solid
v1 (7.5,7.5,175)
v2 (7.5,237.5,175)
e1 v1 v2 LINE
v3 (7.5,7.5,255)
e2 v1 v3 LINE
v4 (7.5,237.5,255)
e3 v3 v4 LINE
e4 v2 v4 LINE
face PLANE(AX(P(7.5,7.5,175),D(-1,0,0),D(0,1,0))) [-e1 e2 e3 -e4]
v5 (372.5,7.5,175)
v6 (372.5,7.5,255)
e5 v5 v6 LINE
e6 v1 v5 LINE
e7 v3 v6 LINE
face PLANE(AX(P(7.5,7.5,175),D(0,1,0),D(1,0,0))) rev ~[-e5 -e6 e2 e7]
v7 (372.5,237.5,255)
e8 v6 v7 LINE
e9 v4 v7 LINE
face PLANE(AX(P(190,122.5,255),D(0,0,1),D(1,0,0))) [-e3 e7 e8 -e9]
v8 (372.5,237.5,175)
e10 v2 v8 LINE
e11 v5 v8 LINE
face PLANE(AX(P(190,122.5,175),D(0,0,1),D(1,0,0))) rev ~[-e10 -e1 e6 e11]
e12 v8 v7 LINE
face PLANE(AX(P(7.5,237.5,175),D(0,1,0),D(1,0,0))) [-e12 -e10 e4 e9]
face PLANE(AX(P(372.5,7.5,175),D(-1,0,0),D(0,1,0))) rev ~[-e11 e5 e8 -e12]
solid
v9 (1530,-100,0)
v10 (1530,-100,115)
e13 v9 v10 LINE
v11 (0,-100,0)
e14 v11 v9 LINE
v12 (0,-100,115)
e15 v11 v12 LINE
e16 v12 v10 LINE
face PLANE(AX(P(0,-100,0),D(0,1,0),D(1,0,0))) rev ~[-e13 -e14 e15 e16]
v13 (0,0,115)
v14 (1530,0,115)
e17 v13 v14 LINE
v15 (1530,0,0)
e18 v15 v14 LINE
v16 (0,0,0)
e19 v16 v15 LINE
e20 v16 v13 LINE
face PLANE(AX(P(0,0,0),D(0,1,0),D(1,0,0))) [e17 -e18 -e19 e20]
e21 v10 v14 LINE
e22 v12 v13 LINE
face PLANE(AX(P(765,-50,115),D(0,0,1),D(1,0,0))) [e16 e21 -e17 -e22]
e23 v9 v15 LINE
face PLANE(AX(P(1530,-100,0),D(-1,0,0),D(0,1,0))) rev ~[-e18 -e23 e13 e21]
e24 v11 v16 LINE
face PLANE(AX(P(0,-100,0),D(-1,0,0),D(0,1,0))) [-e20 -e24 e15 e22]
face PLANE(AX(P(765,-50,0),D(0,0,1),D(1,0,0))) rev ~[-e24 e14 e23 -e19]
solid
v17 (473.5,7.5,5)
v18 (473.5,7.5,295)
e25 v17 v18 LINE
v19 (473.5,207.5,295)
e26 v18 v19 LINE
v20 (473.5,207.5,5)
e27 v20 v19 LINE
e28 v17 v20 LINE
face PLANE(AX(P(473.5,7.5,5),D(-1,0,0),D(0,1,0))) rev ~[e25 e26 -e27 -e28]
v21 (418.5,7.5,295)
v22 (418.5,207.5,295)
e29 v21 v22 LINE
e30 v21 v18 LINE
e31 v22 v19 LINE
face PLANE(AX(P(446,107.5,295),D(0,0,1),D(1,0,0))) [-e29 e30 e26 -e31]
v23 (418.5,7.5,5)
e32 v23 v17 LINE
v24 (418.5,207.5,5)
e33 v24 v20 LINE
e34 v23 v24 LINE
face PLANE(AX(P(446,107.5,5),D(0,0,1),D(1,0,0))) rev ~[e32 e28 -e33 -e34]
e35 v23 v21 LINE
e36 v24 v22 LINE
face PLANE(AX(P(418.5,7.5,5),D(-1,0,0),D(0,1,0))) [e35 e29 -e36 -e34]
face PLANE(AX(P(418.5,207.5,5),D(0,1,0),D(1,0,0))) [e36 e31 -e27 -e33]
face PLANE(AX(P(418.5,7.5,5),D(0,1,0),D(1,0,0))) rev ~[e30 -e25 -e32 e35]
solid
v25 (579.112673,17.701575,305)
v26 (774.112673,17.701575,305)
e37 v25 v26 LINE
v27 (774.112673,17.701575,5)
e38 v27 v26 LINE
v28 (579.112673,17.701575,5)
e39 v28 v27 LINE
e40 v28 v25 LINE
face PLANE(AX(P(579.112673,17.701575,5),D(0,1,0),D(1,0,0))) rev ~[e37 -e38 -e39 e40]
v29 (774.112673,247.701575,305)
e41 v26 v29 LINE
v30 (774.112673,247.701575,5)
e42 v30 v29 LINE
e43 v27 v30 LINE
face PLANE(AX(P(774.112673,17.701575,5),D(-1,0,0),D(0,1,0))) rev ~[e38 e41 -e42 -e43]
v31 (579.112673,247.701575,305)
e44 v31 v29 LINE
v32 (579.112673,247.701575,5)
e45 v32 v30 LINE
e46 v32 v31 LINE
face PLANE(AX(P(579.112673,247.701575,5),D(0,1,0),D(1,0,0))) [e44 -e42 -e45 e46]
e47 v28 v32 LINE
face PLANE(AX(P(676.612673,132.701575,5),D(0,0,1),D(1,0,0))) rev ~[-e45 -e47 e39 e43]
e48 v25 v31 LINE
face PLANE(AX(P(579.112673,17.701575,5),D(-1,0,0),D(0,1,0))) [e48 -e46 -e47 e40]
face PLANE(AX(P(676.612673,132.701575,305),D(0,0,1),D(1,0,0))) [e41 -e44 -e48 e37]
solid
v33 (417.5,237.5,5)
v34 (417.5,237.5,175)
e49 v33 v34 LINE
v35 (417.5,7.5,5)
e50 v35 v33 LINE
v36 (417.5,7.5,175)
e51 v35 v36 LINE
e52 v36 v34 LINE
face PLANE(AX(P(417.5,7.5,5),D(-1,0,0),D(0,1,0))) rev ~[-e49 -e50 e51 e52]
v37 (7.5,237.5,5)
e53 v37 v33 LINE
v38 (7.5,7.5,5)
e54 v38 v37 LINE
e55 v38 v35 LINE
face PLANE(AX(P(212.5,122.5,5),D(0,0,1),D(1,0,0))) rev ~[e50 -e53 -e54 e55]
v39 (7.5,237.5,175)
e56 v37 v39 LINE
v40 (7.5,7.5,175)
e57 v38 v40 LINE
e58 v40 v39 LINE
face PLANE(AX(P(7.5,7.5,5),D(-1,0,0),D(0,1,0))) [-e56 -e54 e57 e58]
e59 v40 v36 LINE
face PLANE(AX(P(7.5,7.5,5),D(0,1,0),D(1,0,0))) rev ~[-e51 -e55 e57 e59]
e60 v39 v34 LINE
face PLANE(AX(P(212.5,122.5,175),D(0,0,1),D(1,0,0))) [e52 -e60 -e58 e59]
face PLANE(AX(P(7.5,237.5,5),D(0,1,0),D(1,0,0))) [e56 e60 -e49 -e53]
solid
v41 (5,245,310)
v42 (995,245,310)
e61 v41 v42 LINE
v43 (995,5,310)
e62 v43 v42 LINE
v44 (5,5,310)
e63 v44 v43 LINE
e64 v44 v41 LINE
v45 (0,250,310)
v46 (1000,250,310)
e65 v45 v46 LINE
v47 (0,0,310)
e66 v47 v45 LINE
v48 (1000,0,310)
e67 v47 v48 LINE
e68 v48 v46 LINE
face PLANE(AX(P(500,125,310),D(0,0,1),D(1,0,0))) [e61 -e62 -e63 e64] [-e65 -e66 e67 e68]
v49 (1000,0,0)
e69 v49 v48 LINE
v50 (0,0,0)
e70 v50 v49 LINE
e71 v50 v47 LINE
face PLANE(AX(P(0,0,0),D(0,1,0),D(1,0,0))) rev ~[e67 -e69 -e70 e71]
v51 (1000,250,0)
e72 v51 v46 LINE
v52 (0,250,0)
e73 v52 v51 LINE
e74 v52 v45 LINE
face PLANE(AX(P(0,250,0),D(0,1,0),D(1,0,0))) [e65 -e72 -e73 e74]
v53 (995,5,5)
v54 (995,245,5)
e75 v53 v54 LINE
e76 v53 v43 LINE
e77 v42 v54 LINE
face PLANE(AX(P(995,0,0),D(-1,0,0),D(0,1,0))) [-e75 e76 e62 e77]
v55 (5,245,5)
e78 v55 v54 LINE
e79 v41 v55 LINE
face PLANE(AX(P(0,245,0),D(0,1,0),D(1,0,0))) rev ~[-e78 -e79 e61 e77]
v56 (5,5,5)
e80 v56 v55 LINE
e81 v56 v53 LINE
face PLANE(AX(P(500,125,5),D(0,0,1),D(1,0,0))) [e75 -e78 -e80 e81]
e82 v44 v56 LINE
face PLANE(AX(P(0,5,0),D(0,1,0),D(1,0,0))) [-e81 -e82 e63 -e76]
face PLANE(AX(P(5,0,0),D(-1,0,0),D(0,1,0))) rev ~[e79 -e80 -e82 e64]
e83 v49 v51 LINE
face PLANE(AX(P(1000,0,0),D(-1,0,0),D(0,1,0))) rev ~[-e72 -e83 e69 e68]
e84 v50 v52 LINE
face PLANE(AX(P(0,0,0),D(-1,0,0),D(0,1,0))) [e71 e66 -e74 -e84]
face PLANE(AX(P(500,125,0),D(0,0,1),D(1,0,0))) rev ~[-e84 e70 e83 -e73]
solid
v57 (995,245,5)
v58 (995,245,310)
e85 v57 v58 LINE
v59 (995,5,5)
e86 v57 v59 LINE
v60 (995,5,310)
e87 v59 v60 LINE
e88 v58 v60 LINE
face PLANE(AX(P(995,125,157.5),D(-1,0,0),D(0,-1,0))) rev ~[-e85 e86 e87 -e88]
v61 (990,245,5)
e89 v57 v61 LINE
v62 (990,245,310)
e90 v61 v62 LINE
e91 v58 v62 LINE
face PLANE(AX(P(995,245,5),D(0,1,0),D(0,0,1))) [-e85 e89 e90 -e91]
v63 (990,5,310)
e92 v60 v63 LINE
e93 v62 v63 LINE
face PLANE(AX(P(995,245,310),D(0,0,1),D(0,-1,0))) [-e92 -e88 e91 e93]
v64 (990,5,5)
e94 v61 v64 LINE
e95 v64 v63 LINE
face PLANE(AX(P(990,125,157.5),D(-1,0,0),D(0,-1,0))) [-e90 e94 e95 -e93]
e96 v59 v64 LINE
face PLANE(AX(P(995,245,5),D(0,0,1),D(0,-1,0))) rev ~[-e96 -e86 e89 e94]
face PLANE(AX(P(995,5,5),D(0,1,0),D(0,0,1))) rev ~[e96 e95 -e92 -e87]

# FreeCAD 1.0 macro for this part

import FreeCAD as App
import Part
import Sketcher
from FreeCAD import Vector
Q = App.Units.Quantity


def faces_at(feature, points):
    """Names of the faces that lie closest to the given points."""
    faces = feature.Shape.Faces
    near = lambda p: min(range(len(faces)), key=lambda i: faces[i].distToShape(Part.Vertex(*p))[0])
    return sorted({f"Face{near(p) + 1}" for p in points})

doc = App.newDocument("Part")
body = doc.addObject("PartDesign::Body", "Body")

# Sketch on XY plane
sketch1 = body.newObject("Sketcher::SketchObject", "Sketch")
sketch1.AttachmentSupport = (doc.getObject("XY_Plane"), [""])
sketch1.MapMode = "FlatFace"
sketch1.addGeometry(Part.LineSegment(Vector(0, 250, 0), Vector(0, 0, 0)), False)
sketch1.addGeometry(Part.LineSegment(Vector(0, 0, 0), Vector(1000, 0, 0)), False)
sketch1.addGeometry(Part.LineSegment(Vector(1000, 0, 0), Vector(1000, 250, 0)), False)
sketch1.addGeometry(Part.LineSegment(Vector(1000, 250, 0), Vector(0, 250, 0)), False)
sketch1.addConstraint(Sketcher.Constraint("Coincident", 0, 2, 1, 1))
sketch1.addConstraint(Sketcher.Constraint("Coincident", 1, 2, 2, 1))
sketch1.addConstraint(Sketcher.Constraint("Coincident", 2, 2, 3, 1))
sketch1.addConstraint(Sketcher.Constraint("Coincident", 3, 2, 0, 1))
sketch1.addConstraint(Sketcher.Constraint("Vertical", 0))
sketch1.addConstraint(Sketcher.Constraint("Horizontal", 1))
sketch1.addConstraint(Sketcher.Constraint("Vertical", 2))
sketch1.addConstraint(Sketcher.Constraint("Horizontal", 3))
sketch1.addConstraint(Sketcher.Constraint("Coincident", 0, 2, -1, 1))
sketch1.addConstraint(Sketcher.Constraint("DistanceX", 1, 1, 1, 2, Q("1000 mm")))
sketch1.addConstraint(Sketcher.Constraint("DistanceY", 0, 2, 0, 1, Q("250 mm")))
pad1 = body.newObject("PartDesign::Pad", "Pad")
pad1.Profile = sketch1
pad1.Length = 310
doc.recompute()

thickness = body.newObject("PartDesign::Thickness", "Thickness")
thickness.Base = (pad1, faces_at(pad1, [(500, 125, 310)]))
thickness.Value = 5
thickness.Reversed = True
thickness.Join = "Arc"
body2 = doc.addObject("PartDesign::Body", "Body001")

# Sketch on XY plane
sketch2 = body2.newObject("Sketcher::SketchObject", "Sketch001")
sketch2.AttachmentSupport = (doc.getObject("XY_Plane001"), [""])
sketch2.MapMode = "FlatFace"
sketch2.AttachmentOffset = App.Placement(Vector(0, 0, 5), App.Rotation())
sketch2.addGeometry(Part.LineSegment(Vector(8, 238, 0), Vector(8, 8, 0)), False)
sketch2.addGeometry(Part.LineSegment(Vector(8, 8, 0), Vector(418, 8, 0)), False)
sketch2.addGeometry(Part.LineSegment(Vector(418, 8, 0), Vector(418, 238, 0)), False)
sketch2.addGeometry(Part.LineSegment(Vector(418, 238, 0), Vector(8, 238, 0)), False)
sketch2.addConstraint(Sketcher.Constraint("Coincident", 0, 2, 1, 1))
sketch2.addConstraint(Sketcher.Constraint("Coincident", 1, 2, 2, 1))
sketch2.addConstraint(Sketcher.Constraint("Coincident", 2, 2, 3, 1))
sketch2.addConstraint(Sketcher.Constraint("Coincident", 3, 2, 0, 1))
sketch2.addConstraint(Sketcher.Constraint("Vertical", 0))
sketch2.addConstraint(Sketcher.Constraint("Horizontal", 1))
sketch2.addConstraint(Sketcher.Constraint("Vertical", 2))
sketch2.addConstraint(Sketcher.Constraint("Horizontal", 3))
sketch2.addConstraint(Sketcher.Constraint("DistanceX", 1, 1, 1, 2, Q("410 mm")))
sketch2.addConstraint(Sketcher.Constraint("DistanceY", 0, 2, 0, 1, Q("230 mm")))
sketch2.addConstraint(Sketcher.Constraint("DistanceX", -1, 1, 0, 2, Q("7.5 mm")))
sketch2.addConstraint(Sketcher.Constraint("DistanceY", -1, 1, 0, 2, Q("7.5 mm")))
pad2 = body2.newObject("PartDesign::Pad", "Pad001")
pad2.Profile = sketch2
pad2.Length = 170
body3 = doc.addObject("PartDesign::Body", "Body002")

# Sketch on XY plane
sketch3 = body3.newObject("Sketcher::SketchObject", "Sketch002")
sketch3.AttachmentSupport = (doc.getObject("XY_Plane002"), [""])
sketch3.MapMode = "FlatFace"
sketch3.AttachmentOffset = App.Placement(Vector(0, 0, 175), App.Rotation())
sketch3.addGeometry(Part.LineSegment(Vector(8, 238, 0), Vector(8, 8, 0)), False)
sketch3.addGeometry(Part.LineSegment(Vector(8, 8, 0), Vector(372, 8, 0)), False)
sketch3.addGeometry(Part.LineSegment(Vector(372, 8, 0), Vector(372, 238, 0)), False)
sketch3.addGeometry(Part.LineSegment(Vector(372, 238, 0), Vector(8, 238, 0)), False)
sketch3.addConstraint(Sketcher.Constraint("Coincident", 0, 2, 1, 1))
sketch3.addConstraint(Sketcher.Constraint("Coincident", 1, 2, 2, 1))
sketch3.addConstraint(Sketcher.Constraint("Coincident", 2, 2, 3, 1))
sketch3.addConstraint(Sketcher.Constraint("Coincident", 3, 2, 0, 1))
sketch3.addConstraint(Sketcher.Constraint("Vertical", 0))
sketch3.addConstraint(Sketcher.Constraint("Horizontal", 1))
sketch3.addConstraint(Sketcher.Constraint("Vertical", 2))
sketch3.addConstraint(Sketcher.Constraint("Horizontal", 3))
sketch3.addConstraint(Sketcher.Constraint("DistanceX", 1, 1, 1, 2, Q("365 mm")))
sketch3.addConstraint(Sketcher.Constraint("DistanceY", 0, 2, 0, 1, Q("230 mm")))
sketch3.addConstraint(Sketcher.Constraint("DistanceX", -1, 1, 0, 2, Q("7.5 mm")))
sketch3.addConstraint(Sketcher.Constraint("DistanceY", -1, 1, 0, 2, Q("7.5 mm")))
pad3 = body3.newObject("PartDesign::Pad", "Pad002")
pad3.Profile = sketch3
pad3.Length = 80
body4 = doc.addObject("PartDesign::Body", "Body003")

# Sketch on XY plane
sketch4 = body4.newObject("Sketcher::SketchObject", "Sketch003")
sketch4.AttachmentSupport = (doc.getObject("XY_Plane003"), [""])
sketch4.MapMode = "FlatFace"
sketch4.AttachmentOffset = App.Placement(Vector(0, 0, 5), App.Rotation())
sketch4.addGeometry(Part.LineSegment(Vector(418, 208, 0), Vector(418, 8, 0)), False)
sketch4.addGeometry(Part.LineSegment(Vector(418, 8, 0), Vector(474, 8, 0)), False)
sketch4.addGeometry(Part.LineSegment(Vector(474, 8, 0), Vector(474, 208, 0)), False)
sketch4.addGeometry(Part.LineSegment(Vector(474, 208, 0), Vector(418, 208, 0)), False)
sketch4.addConstraint(Sketcher.Constraint("Coincident", 0, 2, 1, 1))
sketch4.addConstraint(Sketcher.Constraint("Coincident", 1, 2, 2, 1))
sketch4.addConstraint(Sketcher.Constraint("Coincident", 2, 2, 3, 1))
sketch4.addConstraint(Sketcher.Constraint("Coincident", 3, 2, 0, 1))
sketch4.addConstraint(Sketcher.Constraint("Vertical", 0))
sketch4.addConstraint(Sketcher.Constraint("Horizontal", 1))
sketch4.addConstraint(Sketcher.Constraint("Vertical", 2))
sketch4.addConstraint(Sketcher.Constraint("Horizontal", 3))
sketch4.addConstraint(Sketcher.Constraint("DistanceX", 1, 1, 1, 2, Q("55 mm")))
sketch4.addConstraint(Sketcher.Constraint("DistanceY", 0, 2, 0, 1, Q("200 mm")))
sketch4.addConstraint(Sketcher.Constraint("DistanceX", -1, 1, 0, 2, Q("418.5 mm")))
sketch4.addConstraint(Sketcher.Constraint("DistanceY", -1, 1, 0, 2, Q("7.5 mm")))
pad4 = body4.newObject("PartDesign::Pad", "Pad003")
pad4.Profile = sketch4
pad4.Length = 290
body5 = doc.addObject("PartDesign::Body", "Body004")

# Sketch on XY plane
sketch5 = body5.newObject("Sketcher::SketchObject", "Sketch004")
sketch5.AttachmentSupport = (doc.getObject("XY_Plane004"), [""])
sketch5.MapMode = "FlatFace"
sketch5.AttachmentOffset = App.Placement(Vector(0, 0, 5), App.Rotation())
sketch5.addGeometry(Part.LineSegment(Vector(579, 248, 0), Vector(579, 18, 0)), False)
sketch5.addGeometry(Part.LineSegment(Vector(579, 18, 0), Vector(774, 18, 0)), False)
sketch5.addGeometry(Part.LineSegment(Vector(774, 18, 0), Vector(774, 248, 0)), False)
sketch5.addGeometry(Part.LineSegment(Vector(774, 248, 0), Vector(579, 248, 0)), False)
sketch5.addConstraint(Sketcher.Constraint("Coincident", 0, 2, 1, 1))
sketch5.addConstraint(Sketcher.Constraint("Coincident", 1, 2, 2, 1))
sketch5.addConstraint(Sketcher.Constraint("Coincident", 2, 2, 3, 1))
sketch5.addConstraint(Sketcher.Constraint("Coincident", 3, 2, 0, 1))
sketch5.addConstraint(Sketcher.Constraint("Vertical", 0))
sketch5.addConstraint(Sketcher.Constraint("Horizontal", 1))
sketch5.addConstraint(Sketcher.Constraint("Vertical", 2))
sketch5.addConstraint(Sketcher.Constraint("Horizontal", 3))
sketch5.addConstraint(Sketcher.Constraint("DistanceX", 1, 1, 1, 2, Q("195 mm")))
sketch5.addConstraint(Sketcher.Constraint("DistanceY", 0, 2, 0, 1, Q("230 mm")))
sketch5.addConstraint(Sketcher.Constraint("DistanceX", -1, 1, 0, 2, Q("579.112673 mm")))
sketch5.addConstraint(Sketcher.Constraint("DistanceY", -1, 1, 0, 2, Q("17.701575 mm")))
pad5 = body5.newObject("PartDesign::Pad", "Pad004")
pad5.Profile = sketch5
pad5.Length = 300
body6 = doc.addObject("PartDesign::Body", "Body005")

# Sketch on XY plane
sketch6 = body6.newObject("Sketcher::SketchObject", "Sketch005")
sketch6.AttachmentSupport = (doc.getObject("XY_Plane005"), [""])
sketch6.MapMode = "FlatFace"
sketch6.addGeometry(Part.LineSegment(Vector(0, 0, 0), Vector(0, -100, 0)), False)
sketch6.addGeometry(Part.LineSegment(Vector(0, -100, 0), Vector(1530, -100, 0)), False)
sketch6.addGeometry(Part.LineSegment(Vector(1530, -100, 0), Vector(1530, 0, 0)), False)
sketch6.addGeometry(Part.LineSegment(Vector(1530, 0, 0), Vector(0, 0, 0)), False)
sketch6.addConstraint(Sketcher.Constraint("Coincident", 0, 2, 1, 1))
sketch6.addConstraint(Sketcher.Constraint("Coincident", 1, 2, 2, 1))
sketch6.addConstraint(Sketcher.Constraint("Coincident", 2, 2, 3, 1))
sketch6.addConstraint(Sketcher.Constraint("Coincident", 3, 2, 0, 1))
sketch6.addConstraint(Sketcher.Constraint("Vertical", 0))
sketch6.addConstraint(Sketcher.Constraint("Horizontal", 1))
sketch6.addConstraint(Sketcher.Constraint("Vertical", 2))
sketch6.addConstraint(Sketcher.Constraint("Horizontal", 3))
sketch6.addConstraint(Sketcher.Constraint("Coincident", 3, 2, -1, 1))
sketch6.addConstraint(Sketcher.Constraint("DistanceX", 1, 1, 1, 2, Q("1530 mm")))
sketch6.addConstraint(Sketcher.Constraint("DistanceY", 0, 2, 0, 1, Q("100 mm")))
pad6 = body6.newObject("PartDesign::Pad", "Pad005")
pad6.Profile = sketch6
pad6.Length = 115
body7 = doc.addObject("PartDesign::Body", "Body006")

# Sketch on YZ plane
sketch7 = body7.newObject("Sketcher::SketchObject", "Sketch006")
sketch7.AttachmentSupport = (doc.getObject("YZ_Plane006"), [""])
sketch7.MapMode = "FlatFace"
sketch7.AttachmentOffset = App.Placement(Vector(0, 0, 995), App.Rotation())
sketch7.addGeometry(Part.LineSegment(Vector(245, 310, 0), Vector(245, 5, 0)), False)
sketch7.addGeometry(Part.LineSegment(Vector(245, 5, 0), Vector(5, 5, 0)), False)
sketch7.addGeometry(Part.LineSegment(Vector(5, 5, 0), Vector(5, 310, 0)), False)
sketch7.addGeometry(Part.LineSegment(Vector(5, 310, 0), Vector(245, 310, 0)), False)
sketch7.addConstraint(Sketcher.Constraint("Coincident", 0, 2, 1, 1))
sketch7.addConstraint(Sketcher.Constraint("Coincident", 1, 2, 2, 1))
sketch7.addConstraint(Sketcher.Constraint("Coincident", 2, 2, 3, 1))
sketch7.addConstraint(Sketcher.Constraint("Coincident", 3, 2, 0, 1))
sketch7.addConstraint(Sketcher.Constraint("Vertical", 0))
sketch7.addConstraint(Sketcher.Constraint("Horizontal", 1))
sketch7.addConstraint(Sketcher.Constraint("Vertical", 2))
sketch7.addConstraint(Sketcher.Constraint("Horizontal", 3))
sketch7.addConstraint(Sketcher.Constraint("DistanceX", 1, 2, 1, 1, Q("240 mm")))
sketch7.addConstraint(Sketcher.Constraint("DistanceY", 0, 2, 0, 1, Q("305 mm")))
sketch7.addConstraint(Sketcher.Constraint("DistanceX", -1, 1, 0, 2, Q("245 mm")))
sketch7.addConstraint(Sketcher.Constraint("DistanceY", -1, 1, 0, 2, Q("5 mm")))
pad7 = body7.newObject("PartDesign::Pad", "Pad006")
pad7.Profile = sketch7
pad7.Length = 5
pad7.Reversed = True

doc.recompute()
